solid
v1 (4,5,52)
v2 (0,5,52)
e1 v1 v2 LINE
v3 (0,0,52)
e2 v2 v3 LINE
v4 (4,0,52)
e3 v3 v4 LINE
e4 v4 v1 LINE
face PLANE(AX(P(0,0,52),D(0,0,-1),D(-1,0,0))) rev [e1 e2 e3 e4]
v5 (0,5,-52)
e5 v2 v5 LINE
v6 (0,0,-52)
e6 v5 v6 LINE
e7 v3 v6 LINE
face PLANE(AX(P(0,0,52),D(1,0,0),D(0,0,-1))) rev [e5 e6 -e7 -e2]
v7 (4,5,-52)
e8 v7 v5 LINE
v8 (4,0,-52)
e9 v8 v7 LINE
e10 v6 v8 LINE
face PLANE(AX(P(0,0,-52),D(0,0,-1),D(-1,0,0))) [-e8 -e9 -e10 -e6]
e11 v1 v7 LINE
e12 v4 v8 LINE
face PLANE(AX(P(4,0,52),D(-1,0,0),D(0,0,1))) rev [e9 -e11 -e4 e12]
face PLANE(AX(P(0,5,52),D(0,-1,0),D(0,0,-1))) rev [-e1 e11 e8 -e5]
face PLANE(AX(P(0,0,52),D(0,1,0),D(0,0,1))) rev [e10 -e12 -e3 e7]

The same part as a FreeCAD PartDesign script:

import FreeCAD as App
import Part
import Sketcher
from FreeCAD import Vector
Q = App.Units.Quantity

doc = App.newDocument("Part")
body = doc.addObject("PartDesign::Body", "Body")

# Sketch on XY plane
sketch1 = body.newObject("Sketcher::SketchObject", "Sketch")
sketch1.AttachmentSupport = (doc.getObject("XY_Plane"), [""])
sketch1.MapMode = "FlatFace"
sketch1.addGeometry(Part.LineSegment(Vector(0, 5, 0), Vector(0, 0, 0)), False)
sketch1.addGeometry(Part.LineSegment(Vector(0, 0, 0), Vector(4, 0, 0)), False)
sketch1.addGeometry(Part.LineSegment(Vector(4, 0, 0), Vector(4, 5, 0)), False)
sketch1.addGeometry(Part.LineSegment(Vector(4, 5, 0), Vector(0, 5, 0)), False)
sketch1.addConstraint(Sketcher.Constraint("Coincident", 0, 2, 1, 1))
sketch1.addConstraint(Sketcher.Constraint("Coincident", 1, 2, 2, 1))
sketch1.addConstraint(Sketcher.Constraint("Coincident", 2, 2, 3, 1))
sketch1.addConstraint(Sketcher.Constraint("Coincident", 3, 2, 0, 1))
sketch1.addConstraint(Sketcher.Constraint("Vertical", 0))
sketch1.addConstraint(Sketcher.Constraint("Horizontal", 1))
sketch1.addConstraint(Sketcher.Constraint("Vertical", 2))
sketch1.addConstraint(Sketcher.Constraint("Horizontal", 3))
sketch1.addConstraint(Sketcher.Constraint("Coincident", 0, 2, -1, 1))
sketch1.addConstraint(Sketcher.Constraint("DistanceX", 1, 1, 1, 2, Q("4 mm")))
sketch1.addConstraint(Sketcher.Constraint("DistanceY", 0, 2, 0, 1, Q("5 mm")))
pad1 = body.newObject("PartDesign::Pad", "Pad")
pad1.Profile = sketch1
pad1.Length = 104
pad1.Midplane = True

doc.recompute()
